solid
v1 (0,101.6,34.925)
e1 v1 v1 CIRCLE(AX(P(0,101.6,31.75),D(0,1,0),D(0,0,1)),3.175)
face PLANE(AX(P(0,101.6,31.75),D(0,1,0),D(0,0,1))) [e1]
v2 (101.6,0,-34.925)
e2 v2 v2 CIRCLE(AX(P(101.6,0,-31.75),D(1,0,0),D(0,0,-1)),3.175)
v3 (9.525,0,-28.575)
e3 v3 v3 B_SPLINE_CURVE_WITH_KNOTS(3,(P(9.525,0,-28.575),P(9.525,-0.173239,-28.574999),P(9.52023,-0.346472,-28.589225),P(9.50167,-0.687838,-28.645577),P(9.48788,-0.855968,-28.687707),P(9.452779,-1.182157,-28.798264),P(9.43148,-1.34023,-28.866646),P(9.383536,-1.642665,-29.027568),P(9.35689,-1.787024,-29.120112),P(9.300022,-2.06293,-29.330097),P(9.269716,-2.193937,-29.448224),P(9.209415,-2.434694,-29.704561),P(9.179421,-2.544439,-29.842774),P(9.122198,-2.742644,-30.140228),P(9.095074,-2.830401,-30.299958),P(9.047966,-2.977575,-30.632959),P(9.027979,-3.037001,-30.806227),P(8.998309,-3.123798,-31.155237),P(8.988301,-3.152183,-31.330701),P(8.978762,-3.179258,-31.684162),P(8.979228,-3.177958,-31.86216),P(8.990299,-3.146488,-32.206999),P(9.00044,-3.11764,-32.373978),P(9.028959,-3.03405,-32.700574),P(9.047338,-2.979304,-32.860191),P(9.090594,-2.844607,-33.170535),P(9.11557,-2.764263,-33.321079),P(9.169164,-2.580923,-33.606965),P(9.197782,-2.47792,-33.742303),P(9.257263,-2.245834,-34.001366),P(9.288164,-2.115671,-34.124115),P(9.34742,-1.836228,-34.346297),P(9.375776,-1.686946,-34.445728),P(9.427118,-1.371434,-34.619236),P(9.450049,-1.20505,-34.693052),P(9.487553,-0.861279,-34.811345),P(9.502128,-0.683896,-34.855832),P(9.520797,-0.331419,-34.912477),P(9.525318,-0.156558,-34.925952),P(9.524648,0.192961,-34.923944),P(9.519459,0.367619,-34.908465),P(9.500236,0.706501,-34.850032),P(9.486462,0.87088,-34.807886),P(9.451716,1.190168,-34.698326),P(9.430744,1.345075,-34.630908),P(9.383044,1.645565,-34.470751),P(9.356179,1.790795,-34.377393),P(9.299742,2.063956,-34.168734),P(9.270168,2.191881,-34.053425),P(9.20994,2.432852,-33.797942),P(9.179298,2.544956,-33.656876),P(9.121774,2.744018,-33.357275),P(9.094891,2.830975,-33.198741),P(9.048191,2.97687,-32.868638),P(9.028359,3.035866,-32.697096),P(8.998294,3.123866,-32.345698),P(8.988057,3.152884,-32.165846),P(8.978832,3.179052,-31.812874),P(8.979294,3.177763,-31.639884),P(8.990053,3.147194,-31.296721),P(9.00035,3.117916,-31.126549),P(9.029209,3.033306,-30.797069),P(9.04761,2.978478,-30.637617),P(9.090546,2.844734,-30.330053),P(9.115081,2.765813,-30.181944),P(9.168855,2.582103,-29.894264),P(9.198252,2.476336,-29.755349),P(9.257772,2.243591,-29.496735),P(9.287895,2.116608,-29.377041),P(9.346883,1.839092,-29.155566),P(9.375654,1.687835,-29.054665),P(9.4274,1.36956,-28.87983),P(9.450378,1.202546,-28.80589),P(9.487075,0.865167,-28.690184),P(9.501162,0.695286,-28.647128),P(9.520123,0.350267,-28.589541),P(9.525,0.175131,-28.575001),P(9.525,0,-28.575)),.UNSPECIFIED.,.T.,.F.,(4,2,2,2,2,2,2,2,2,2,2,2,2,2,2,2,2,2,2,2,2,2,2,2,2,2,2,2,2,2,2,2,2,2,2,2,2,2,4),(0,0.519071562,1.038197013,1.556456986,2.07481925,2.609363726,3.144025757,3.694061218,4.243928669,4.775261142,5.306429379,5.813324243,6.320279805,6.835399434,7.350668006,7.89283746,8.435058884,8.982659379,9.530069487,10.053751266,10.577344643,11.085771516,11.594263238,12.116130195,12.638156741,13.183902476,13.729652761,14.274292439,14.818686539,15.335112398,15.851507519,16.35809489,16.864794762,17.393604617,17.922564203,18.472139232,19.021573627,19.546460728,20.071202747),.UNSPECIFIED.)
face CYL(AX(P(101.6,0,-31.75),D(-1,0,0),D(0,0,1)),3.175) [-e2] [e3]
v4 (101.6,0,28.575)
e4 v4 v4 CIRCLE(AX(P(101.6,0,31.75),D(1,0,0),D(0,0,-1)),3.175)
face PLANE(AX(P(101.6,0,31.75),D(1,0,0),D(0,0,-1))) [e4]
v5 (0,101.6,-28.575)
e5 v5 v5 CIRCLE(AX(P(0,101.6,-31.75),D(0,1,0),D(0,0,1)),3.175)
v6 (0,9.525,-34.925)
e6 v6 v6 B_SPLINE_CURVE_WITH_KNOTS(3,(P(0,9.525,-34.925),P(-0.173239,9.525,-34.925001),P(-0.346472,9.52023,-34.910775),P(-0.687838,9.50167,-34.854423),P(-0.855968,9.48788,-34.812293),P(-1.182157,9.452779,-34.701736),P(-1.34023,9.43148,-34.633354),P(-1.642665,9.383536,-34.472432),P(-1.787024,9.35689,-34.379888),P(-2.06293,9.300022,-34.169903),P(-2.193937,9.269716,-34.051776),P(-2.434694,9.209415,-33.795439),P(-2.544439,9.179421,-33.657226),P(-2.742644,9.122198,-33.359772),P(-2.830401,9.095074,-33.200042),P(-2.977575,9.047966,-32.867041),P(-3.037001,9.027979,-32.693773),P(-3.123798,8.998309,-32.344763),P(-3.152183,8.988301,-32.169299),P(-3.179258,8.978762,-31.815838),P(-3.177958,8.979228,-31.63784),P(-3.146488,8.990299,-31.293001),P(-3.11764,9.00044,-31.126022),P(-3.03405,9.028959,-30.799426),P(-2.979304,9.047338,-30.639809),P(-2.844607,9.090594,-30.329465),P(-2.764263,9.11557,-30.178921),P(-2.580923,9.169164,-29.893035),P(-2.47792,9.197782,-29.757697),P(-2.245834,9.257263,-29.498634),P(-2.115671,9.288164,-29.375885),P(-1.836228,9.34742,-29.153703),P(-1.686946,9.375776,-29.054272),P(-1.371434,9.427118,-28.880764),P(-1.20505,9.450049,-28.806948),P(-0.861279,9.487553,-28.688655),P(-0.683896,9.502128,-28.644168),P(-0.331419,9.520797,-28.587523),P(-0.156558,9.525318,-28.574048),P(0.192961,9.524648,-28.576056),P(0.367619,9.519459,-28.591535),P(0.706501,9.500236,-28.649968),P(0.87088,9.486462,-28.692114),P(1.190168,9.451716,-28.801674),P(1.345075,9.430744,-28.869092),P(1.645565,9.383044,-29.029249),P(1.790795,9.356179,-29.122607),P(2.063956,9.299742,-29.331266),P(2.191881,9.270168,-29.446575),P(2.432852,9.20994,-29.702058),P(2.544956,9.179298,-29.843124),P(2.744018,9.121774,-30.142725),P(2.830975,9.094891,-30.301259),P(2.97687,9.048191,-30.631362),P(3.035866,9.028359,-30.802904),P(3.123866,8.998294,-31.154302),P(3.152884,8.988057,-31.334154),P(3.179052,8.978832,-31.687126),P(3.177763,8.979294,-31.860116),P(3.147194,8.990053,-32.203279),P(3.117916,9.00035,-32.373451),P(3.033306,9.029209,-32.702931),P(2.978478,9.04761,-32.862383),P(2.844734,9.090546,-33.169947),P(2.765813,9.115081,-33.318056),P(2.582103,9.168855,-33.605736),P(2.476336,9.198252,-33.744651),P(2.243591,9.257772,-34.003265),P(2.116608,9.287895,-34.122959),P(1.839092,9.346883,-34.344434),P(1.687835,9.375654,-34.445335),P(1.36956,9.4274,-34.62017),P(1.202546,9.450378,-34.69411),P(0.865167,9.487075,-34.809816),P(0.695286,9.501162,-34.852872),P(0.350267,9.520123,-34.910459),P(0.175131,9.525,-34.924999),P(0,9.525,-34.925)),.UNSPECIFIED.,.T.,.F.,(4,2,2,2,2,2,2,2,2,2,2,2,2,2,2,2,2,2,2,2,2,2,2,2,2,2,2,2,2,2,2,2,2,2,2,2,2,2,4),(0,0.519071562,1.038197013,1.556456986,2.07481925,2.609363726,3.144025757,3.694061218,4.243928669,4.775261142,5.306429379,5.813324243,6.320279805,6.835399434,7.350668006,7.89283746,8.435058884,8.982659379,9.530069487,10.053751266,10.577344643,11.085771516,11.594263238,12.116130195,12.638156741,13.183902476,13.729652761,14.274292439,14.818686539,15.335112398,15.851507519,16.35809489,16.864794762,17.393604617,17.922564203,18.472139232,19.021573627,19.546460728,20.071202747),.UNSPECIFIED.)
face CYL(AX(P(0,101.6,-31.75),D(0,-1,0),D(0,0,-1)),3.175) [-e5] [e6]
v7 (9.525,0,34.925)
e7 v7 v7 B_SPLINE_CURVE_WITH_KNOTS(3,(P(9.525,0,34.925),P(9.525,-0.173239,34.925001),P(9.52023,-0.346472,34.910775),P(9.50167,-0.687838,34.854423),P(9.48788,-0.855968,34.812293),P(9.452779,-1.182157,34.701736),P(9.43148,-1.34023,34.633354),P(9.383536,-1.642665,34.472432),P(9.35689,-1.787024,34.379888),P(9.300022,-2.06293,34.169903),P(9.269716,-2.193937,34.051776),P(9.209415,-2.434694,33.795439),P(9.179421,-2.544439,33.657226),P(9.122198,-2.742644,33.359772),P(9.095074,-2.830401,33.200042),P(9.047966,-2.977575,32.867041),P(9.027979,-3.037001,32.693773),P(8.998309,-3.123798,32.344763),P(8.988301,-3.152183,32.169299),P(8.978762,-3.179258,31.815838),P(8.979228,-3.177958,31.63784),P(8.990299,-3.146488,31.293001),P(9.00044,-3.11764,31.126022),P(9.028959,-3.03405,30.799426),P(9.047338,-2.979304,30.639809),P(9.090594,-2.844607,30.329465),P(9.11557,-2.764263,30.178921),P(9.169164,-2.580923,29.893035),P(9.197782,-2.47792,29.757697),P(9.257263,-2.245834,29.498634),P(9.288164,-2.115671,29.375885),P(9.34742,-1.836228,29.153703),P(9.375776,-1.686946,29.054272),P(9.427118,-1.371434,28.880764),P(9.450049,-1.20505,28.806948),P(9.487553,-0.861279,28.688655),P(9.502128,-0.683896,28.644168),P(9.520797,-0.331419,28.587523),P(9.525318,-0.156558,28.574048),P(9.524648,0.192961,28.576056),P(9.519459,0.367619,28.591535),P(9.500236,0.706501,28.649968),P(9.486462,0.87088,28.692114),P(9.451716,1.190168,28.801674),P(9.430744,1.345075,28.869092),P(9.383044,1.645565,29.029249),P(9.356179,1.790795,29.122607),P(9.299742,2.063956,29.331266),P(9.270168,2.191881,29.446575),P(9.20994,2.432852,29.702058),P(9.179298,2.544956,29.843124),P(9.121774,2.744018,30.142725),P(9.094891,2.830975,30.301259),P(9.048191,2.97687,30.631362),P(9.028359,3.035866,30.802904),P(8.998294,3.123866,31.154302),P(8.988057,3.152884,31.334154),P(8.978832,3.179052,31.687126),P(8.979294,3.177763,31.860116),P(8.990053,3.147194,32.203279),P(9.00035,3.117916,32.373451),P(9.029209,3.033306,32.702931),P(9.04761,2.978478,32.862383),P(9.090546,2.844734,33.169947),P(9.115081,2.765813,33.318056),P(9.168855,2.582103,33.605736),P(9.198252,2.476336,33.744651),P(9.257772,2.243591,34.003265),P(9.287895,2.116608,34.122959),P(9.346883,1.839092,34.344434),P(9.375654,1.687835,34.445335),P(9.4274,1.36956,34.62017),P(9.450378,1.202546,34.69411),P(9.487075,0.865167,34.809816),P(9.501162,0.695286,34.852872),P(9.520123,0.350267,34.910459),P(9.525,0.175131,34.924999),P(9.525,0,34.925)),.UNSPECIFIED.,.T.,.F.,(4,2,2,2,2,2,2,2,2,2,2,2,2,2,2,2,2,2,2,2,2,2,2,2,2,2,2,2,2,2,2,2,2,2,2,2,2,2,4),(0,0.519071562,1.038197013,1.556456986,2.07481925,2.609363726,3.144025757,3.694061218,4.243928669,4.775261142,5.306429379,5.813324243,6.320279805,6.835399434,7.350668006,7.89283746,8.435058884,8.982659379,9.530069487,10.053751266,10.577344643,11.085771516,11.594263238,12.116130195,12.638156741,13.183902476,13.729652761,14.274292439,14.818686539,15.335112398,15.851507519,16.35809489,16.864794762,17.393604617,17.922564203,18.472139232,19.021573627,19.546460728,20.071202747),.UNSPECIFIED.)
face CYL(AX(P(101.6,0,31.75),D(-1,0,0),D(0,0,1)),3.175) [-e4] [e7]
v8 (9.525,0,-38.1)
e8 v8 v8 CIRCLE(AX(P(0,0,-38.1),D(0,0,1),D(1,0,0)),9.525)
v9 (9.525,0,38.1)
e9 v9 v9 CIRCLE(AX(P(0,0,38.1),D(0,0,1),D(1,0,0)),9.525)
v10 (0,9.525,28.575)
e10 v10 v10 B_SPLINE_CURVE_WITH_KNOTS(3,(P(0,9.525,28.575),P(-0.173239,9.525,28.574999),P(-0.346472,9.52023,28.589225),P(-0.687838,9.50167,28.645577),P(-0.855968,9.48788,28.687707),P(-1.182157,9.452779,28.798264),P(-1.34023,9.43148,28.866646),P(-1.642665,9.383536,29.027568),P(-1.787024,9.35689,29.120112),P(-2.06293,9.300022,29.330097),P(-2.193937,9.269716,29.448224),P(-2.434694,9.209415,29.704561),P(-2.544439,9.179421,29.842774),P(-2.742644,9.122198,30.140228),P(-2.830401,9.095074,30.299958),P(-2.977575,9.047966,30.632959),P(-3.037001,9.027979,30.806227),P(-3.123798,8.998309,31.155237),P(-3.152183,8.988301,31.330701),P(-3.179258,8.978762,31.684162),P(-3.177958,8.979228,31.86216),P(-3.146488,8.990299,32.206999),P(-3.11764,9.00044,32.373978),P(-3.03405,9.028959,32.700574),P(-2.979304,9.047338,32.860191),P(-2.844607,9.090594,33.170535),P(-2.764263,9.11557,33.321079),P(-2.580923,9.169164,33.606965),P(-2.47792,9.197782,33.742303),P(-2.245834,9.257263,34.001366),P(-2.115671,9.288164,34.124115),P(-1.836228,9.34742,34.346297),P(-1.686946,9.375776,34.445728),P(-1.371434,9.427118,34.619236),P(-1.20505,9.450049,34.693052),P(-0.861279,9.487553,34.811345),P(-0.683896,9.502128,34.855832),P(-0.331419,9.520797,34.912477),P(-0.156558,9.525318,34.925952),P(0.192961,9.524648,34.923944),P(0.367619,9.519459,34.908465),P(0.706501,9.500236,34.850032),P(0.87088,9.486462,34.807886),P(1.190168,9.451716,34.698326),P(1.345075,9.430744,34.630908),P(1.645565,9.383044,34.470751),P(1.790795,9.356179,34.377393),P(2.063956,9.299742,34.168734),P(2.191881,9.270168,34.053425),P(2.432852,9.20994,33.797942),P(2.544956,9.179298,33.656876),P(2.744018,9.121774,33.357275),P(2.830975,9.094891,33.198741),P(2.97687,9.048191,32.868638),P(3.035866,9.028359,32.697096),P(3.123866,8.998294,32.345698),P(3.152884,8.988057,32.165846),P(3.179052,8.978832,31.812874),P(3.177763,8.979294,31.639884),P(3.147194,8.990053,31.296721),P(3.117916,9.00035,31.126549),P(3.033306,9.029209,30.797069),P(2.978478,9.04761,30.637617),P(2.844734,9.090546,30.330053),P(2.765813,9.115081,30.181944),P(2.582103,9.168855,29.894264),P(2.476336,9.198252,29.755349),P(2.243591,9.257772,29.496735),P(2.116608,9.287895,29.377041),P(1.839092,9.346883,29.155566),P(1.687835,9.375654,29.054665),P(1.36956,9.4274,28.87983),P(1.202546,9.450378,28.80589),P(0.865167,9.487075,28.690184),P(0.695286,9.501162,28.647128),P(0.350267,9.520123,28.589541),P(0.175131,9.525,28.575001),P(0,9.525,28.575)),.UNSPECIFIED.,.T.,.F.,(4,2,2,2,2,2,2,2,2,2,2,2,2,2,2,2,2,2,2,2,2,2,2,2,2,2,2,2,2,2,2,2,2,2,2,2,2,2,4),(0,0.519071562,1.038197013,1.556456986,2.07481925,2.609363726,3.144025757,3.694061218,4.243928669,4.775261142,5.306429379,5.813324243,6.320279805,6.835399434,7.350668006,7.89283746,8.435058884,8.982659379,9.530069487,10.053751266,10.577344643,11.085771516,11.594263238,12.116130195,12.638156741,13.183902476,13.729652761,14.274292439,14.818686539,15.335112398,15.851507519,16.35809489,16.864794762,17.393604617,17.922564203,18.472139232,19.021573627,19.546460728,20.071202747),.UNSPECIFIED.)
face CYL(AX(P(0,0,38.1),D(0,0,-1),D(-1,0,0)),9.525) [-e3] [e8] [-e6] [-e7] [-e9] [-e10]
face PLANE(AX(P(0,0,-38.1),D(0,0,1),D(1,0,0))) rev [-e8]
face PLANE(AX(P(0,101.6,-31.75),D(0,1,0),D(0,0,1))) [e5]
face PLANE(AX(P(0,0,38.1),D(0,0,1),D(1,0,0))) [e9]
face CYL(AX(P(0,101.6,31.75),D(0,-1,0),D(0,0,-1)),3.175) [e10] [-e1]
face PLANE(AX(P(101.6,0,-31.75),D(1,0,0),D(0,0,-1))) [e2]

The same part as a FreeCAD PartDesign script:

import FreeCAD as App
import Part
import Sketcher

V = App.Vector
Q = App.Units.Quantity

doc = App.newDocument("Part")
params = doc.addObject("Spreadsheet::Sheet", "Params")
for row, (alias, value) in enumerate([
    ("sketch1_diameter", "0.75 in"),
    ("pad1_length", "3 in"),
    ("sketch2_diameter", "0.25 in"),
    ("pad2_length", "4 in"),
    ("sketch3_diameter", "0.25 in"),
    ("pad3_length", "4 in"),
], start=1):
    params.set(f"A{row}", alias)
    params.set(f"B{row}", "=" + value)
    params.setAlias(f"B{row}", alias)

body = doc.addObject("PartDesign::Body", "Body")

# Sketch on XY plane
sketch1 = body.newObject("Sketcher::SketchObject", "Sketch")
sketch1.AttachmentSupport = (doc.getObject("XY_Plane"), [""])
sketch1.MapMode = "FlatFace"
sketch1.addGeometry(Part.Circle(V(0, 0, 0), V(0, 0, 1), 10), False)
sketch1.addConstraint(Sketcher.Constraint("Coincident", 0, 3, -1, 1))
sketch1.addConstraint(Sketcher.Constraint("Diameter", 0, Q("0.75 in")))
sketch1.setExpression("Constraints[1]", "Params.sketch1_diameter")
pad1 = body.newObject("PartDesign::Pad", "Pad")
pad1.Profile = sketch1
pad1.setExpression("Length", "Params.pad1_length")
pad1.Midplane = True

# Sketch on YZ plane
sketch2 = body.newObject("Sketcher::SketchObject", "Sketch001")
sketch2.AttachmentSupport = (doc.getObject("YZ_Plane"), [""])
sketch2.MapMode = "FlatFace"
sketch2.addGeometry(Part.Circle(V(0, 31.8, 0), V(0, 0, 1), 3.2), False)
sketch2.addGeometry(Part.Circle(V(0, -31.8, 0), V(0, 0, 1), 3.2), False)
sketch2.addConstraint(Sketcher.Constraint("Equal", 0, 1))
sketch2.addConstraint(Sketcher.Constraint("Symmetric", 0, 3, 1, 3, -1, 1))
sketch2.addConstraint(Sketcher.Constraint("PointOnObject", 0, 3, -2))
sketch2.addConstraint(Sketcher.Constraint("Diameter", 0, Q("0.25 in")))
sketch2.addConstraint(Sketcher.Constraint("DistanceY", 1, 3, 0, 3, Q("2.5 in")))
sketch2.setExpression("Constraints[3]", "Params.sketch2_diameter")
pad2 = body.newObject("PartDesign::Pad", "Pad001")
pad2.Profile = sketch2
pad2.setExpression("Length", "Params.pad2_length")

# Sketch on XZ plane
sketch3 = body.newObject("Sketcher::SketchObject", "Sketch002")
sketch3.AttachmentSupport = (doc.getObject("XZ_Plane"), [""])
sketch3.MapMode = "FlatFace"
sketch3.addGeometry(Part.Circle(V(0, -31.8, 0), V(0, 0, 1), 3.2), False)
sketch3.addGeometry(Part.Circle(V(0, 31.8, 0), V(0, 0, 1), 3.2), False)
sketch3.addConstraint(Sketcher.Constraint("Equal", 0, 1))
sketch3.addConstraint(Sketcher.Constraint("Symmetric", 0, 3, 1, 3, -1, 1))
sketch3.addConstraint(Sketcher.Constraint("PointOnObject", 0, 3, -2))
sketch3.addConstraint(Sketcher.Constraint("Diameter", 0, Q("0.25 in")))
sketch3.addConstraint(Sketcher.Constraint("DistanceY", 0, 3, 1, 3, Q("2.5 in")))
sketch3.setExpression("Constraints[3]", "Params.sketch3_diameter")
pad3 = body.newObject("PartDesign::Pad", "Pad002")
pad3.Profile = sketch3
pad3.setExpression("Length", "Params.pad3_length")
pad3.Reversed = True

doc.recompute()
